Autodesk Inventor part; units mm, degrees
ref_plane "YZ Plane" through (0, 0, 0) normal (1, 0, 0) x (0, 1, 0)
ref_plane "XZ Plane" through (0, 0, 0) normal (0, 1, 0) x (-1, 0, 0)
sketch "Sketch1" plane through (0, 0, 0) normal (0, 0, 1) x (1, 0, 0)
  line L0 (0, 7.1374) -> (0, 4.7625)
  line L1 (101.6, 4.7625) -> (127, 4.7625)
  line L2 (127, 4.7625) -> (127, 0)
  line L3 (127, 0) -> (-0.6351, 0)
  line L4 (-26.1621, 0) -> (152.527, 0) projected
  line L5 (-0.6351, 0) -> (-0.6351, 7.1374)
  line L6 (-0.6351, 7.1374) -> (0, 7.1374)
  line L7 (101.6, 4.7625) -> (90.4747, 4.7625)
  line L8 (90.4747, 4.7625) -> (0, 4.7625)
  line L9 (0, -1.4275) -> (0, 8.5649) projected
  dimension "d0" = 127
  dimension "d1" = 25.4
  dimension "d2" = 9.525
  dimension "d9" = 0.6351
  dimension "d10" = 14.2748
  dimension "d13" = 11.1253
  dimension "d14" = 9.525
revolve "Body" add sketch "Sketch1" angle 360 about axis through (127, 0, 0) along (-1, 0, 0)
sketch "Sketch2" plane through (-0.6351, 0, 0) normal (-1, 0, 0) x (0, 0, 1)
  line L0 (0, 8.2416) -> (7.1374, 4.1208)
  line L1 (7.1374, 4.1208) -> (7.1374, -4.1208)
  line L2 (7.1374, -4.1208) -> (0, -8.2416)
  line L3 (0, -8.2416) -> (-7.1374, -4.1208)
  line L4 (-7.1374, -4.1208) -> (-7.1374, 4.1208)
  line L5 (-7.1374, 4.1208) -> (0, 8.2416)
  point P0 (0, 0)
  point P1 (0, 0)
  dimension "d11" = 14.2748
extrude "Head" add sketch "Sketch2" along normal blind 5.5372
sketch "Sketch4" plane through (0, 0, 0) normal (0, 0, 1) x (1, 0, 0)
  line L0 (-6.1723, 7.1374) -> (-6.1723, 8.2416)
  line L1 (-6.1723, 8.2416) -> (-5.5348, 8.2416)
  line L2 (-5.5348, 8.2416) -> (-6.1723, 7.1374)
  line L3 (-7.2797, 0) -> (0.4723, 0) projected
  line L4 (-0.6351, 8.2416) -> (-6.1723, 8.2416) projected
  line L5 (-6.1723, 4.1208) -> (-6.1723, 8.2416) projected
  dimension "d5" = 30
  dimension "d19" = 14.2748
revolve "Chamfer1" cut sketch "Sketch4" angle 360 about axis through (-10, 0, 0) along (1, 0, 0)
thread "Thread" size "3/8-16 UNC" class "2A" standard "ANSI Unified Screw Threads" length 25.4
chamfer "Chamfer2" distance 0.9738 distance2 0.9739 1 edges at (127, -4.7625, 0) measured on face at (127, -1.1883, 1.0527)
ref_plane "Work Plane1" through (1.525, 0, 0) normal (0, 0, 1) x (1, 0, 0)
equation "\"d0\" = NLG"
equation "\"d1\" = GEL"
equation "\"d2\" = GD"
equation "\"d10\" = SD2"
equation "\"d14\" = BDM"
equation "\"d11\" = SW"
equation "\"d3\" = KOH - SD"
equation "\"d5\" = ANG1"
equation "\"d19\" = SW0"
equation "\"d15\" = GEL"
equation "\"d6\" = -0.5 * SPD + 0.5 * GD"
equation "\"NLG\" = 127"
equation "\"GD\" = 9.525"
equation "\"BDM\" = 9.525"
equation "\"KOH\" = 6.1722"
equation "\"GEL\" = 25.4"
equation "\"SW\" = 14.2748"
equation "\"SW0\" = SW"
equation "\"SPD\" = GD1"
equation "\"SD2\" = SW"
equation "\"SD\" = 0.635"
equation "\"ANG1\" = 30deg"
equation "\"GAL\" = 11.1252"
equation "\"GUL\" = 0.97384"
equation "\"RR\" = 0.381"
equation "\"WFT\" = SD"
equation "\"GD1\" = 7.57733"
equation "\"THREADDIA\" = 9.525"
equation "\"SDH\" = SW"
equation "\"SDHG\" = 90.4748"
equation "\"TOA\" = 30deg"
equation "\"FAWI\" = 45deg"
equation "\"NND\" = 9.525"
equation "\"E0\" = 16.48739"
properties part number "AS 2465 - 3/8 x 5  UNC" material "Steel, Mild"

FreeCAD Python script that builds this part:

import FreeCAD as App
import Part
import Sketcher
Q = App.Units.Quantity


def edges_at(feature, points):
    """Names of the edges that pass closest to the given points."""
    edges = feature.Shape.Edges
    near = lambda p: min(range(len(edges)), key=lambda i: edges[i].distToShape(Part.Vertex(*p))[0])
    return sorted({f"Edge{near(p) + 1}" for p in points})


def add_polygon(sketch, points):
    """Adds a closed chain of lines whose ends are joined by coincident constraints."""
    first, n = sketch.GeometryCount, len(points)
    for a, b in zip(points, points[1:] + points[:1]):
        sketch.addGeometry(Part.LineSegment(App.Vector(*a, 0), App.Vector(*b, 0)), False)
    for i in range(n):
        sketch.addConstraint(Sketcher.Constraint("Coincident", first + i, 2, first + (i + 1) % n, 1))

doc = App.newDocument("Part")
params = doc.addObject("Spreadsheet::Sheet", "Params")
for row, (alias, value) in enumerate([
    ("sketch1_width", "5 in"),
    ("sketch1_width2", "0.025 in"),
    ("sketch1_height", "0.281 in"),
    ("sketch1_height2", "0.1875 in"),
    ("revolution_angle", "360 deg"),
    ("pad1_length", "0.218 in"),
    ("groove_angle", "360 deg"),
    ("chamfer_size", "0.9738 mm"),
    ("chamfer_size2", "0.9739 mm"),
], start=1):
    params.set(f"A{row}", alias)
    params.set(f"B{row}", "=" + value)
    params.setAlias(f"B{row}", alias)

body = doc.addObject("PartDesign::Body", "Body")

sketch1 = body.newObject("Sketcher::SketchObject", "Sketch")
sketch1.AttachmentSupport = (doc.getObject("XY_Plane"), [""])
sketch1.MapMode = "FlatFace"
add_polygon(sketch1, [(0, 4.8), (0, 7.1), (-0.6, 7.1), (-0.6, 0), (127, 0), (127, 4.8)])
sketch1.addConstraint([
    Sketcher.Constraint("Vertical", 0),
    Sketcher.Constraint("Horizontal", 1),
    Sketcher.Constraint("Vertical", 2),
    Sketcher.Constraint("Horizontal", 3),
    Sketcher.Constraint("Vertical", 4),
    Sketcher.Constraint("Horizontal", 5),
    Sketcher.Constraint("PointOnObject", 0, 2, -2),
    Sketcher.Constraint("PointOnObject", 2, 2, -1),
    Sketcher.Constraint("DistanceX", 5, 2, 5, 1, Q("5 in")),
    Sketcher.Constraint("DistanceX", 1, 2, 1, 1, Q("0.025 in")),
    Sketcher.Constraint("DistanceY", 2, 2, 2, 1, Q("0.281 in")),
    Sketcher.Constraint("DistanceY", 4, 1, 4, 2, Q("0.1875 in")),
])
sketch1.setExpression("Constraints[14]", "Params.sketch1_width")
sketch1.setExpression("Constraints[15]", "Params.sketch1_width2")
sketch1.setExpression("Constraints[16]", "Params.sketch1_height")
sketch1.setExpression("Constraints[17]", "Params.sketch1_height2")
revolution = body.newObject("PartDesign::Revolution", "Revolution")
revolution.Profile = sketch1
revolution.ReferenceAxis = (sketch1, ["H_Axis"])
revolution.setExpression("Angle", "Params.revolution_angle")

sketch2 = body.newObject("Sketcher::SketchObject", "Sketch001")
sketch2.AttachmentSupport = (doc.getObject("YZ_Plane"), [""])
sketch2.MapMode = "FlatFace"
sketch2.AttachmentOffset = App.Placement(App.Vector(0, 0, -0.0250039 * 25.4), App.Rotation())
add_polygon(sketch2, [(4, 7), (8, 0), (4, -7), (-4, -7), (-8, 0), (-4, 7)])
sketch2.addConstraint([
    Sketcher.Constraint("Horizontal", 2),
    Sketcher.Constraint("Horizontal", 5),
    Sketcher.Constraint("Symmetric", 0, 2, 3, 2, -1, 1),
    Sketcher.Constraint("Symmetric", 1, 2, 4, 2, -1, 1),
    Sketcher.Constraint("PointOnObject", 0, 2, -1),
    Sketcher.Constraint("Parallel", 0, 3),
    Sketcher.Constraint("Vertical", 2, 2, 4, 2),
    Sketcher.Constraint("Angle", 0, Q("-59.9999 deg")),
    Sketcher.Constraint("DistanceY", 2, 2, 4, 2, Q("0.562 in")),
    Sketcher.Constraint("DistanceX", 2, 2, 2, 1, Q("8.2416 mm")),
])
pad1 = body.newObject("PartDesign::Pad", "Pad")
pad1.Profile = sketch2
pad1.setExpression("Length", "Params.pad1_length")
pad1.Reversed = True

sketch3 = body.newObject("Sketcher::SketchObject", "Sketch002")
sketch3.AttachmentSupport = (doc.getObject("XY_Plane"), [""])
sketch3.MapMode = "FlatFace"
add_polygon(sketch3, [(-6.2, 8.2), (-6.2, 7.1), (-5.5, 8.2)])
sketch3.addConstraint([
    Sketcher.Constraint("Vertical", 0),
    Sketcher.Constraint("Horizontal", 2),
    Sketcher.Constraint("Angle", 1, Q("60.0004 deg")),
    Sketcher.Constraint("DistanceX", 2, 2, 2, 1, Q("0.0251 in")),
    Sketcher.Constraint("DistanceX", 0, 2, -1, 1, Q("0.243 in")),
    Sketcher.Constraint("DistanceY", -1, 1, 0, 2, Q("0.281 in")),
])
groove = body.newObject("PartDesign::Groove", "Groove")
groove.Profile = sketch3
groove.ReferenceAxis = (sketch3, ["H_Axis"])
groove.setExpression("Angle", "Params.groove_angle")
doc.recompute()

chamfer = body.newObject("PartDesign::Chamfer", "Chamfer")
chamfer.Base = (groove, edges_at(groove, [(127, -4.763, 0)]))
chamfer.ChamferType = "Two distances"
chamfer.setExpression("Size", "Params.chamfer_size")
chamfer.setExpression("Size2", "Params.chamfer_size2")

doc.recompute()
